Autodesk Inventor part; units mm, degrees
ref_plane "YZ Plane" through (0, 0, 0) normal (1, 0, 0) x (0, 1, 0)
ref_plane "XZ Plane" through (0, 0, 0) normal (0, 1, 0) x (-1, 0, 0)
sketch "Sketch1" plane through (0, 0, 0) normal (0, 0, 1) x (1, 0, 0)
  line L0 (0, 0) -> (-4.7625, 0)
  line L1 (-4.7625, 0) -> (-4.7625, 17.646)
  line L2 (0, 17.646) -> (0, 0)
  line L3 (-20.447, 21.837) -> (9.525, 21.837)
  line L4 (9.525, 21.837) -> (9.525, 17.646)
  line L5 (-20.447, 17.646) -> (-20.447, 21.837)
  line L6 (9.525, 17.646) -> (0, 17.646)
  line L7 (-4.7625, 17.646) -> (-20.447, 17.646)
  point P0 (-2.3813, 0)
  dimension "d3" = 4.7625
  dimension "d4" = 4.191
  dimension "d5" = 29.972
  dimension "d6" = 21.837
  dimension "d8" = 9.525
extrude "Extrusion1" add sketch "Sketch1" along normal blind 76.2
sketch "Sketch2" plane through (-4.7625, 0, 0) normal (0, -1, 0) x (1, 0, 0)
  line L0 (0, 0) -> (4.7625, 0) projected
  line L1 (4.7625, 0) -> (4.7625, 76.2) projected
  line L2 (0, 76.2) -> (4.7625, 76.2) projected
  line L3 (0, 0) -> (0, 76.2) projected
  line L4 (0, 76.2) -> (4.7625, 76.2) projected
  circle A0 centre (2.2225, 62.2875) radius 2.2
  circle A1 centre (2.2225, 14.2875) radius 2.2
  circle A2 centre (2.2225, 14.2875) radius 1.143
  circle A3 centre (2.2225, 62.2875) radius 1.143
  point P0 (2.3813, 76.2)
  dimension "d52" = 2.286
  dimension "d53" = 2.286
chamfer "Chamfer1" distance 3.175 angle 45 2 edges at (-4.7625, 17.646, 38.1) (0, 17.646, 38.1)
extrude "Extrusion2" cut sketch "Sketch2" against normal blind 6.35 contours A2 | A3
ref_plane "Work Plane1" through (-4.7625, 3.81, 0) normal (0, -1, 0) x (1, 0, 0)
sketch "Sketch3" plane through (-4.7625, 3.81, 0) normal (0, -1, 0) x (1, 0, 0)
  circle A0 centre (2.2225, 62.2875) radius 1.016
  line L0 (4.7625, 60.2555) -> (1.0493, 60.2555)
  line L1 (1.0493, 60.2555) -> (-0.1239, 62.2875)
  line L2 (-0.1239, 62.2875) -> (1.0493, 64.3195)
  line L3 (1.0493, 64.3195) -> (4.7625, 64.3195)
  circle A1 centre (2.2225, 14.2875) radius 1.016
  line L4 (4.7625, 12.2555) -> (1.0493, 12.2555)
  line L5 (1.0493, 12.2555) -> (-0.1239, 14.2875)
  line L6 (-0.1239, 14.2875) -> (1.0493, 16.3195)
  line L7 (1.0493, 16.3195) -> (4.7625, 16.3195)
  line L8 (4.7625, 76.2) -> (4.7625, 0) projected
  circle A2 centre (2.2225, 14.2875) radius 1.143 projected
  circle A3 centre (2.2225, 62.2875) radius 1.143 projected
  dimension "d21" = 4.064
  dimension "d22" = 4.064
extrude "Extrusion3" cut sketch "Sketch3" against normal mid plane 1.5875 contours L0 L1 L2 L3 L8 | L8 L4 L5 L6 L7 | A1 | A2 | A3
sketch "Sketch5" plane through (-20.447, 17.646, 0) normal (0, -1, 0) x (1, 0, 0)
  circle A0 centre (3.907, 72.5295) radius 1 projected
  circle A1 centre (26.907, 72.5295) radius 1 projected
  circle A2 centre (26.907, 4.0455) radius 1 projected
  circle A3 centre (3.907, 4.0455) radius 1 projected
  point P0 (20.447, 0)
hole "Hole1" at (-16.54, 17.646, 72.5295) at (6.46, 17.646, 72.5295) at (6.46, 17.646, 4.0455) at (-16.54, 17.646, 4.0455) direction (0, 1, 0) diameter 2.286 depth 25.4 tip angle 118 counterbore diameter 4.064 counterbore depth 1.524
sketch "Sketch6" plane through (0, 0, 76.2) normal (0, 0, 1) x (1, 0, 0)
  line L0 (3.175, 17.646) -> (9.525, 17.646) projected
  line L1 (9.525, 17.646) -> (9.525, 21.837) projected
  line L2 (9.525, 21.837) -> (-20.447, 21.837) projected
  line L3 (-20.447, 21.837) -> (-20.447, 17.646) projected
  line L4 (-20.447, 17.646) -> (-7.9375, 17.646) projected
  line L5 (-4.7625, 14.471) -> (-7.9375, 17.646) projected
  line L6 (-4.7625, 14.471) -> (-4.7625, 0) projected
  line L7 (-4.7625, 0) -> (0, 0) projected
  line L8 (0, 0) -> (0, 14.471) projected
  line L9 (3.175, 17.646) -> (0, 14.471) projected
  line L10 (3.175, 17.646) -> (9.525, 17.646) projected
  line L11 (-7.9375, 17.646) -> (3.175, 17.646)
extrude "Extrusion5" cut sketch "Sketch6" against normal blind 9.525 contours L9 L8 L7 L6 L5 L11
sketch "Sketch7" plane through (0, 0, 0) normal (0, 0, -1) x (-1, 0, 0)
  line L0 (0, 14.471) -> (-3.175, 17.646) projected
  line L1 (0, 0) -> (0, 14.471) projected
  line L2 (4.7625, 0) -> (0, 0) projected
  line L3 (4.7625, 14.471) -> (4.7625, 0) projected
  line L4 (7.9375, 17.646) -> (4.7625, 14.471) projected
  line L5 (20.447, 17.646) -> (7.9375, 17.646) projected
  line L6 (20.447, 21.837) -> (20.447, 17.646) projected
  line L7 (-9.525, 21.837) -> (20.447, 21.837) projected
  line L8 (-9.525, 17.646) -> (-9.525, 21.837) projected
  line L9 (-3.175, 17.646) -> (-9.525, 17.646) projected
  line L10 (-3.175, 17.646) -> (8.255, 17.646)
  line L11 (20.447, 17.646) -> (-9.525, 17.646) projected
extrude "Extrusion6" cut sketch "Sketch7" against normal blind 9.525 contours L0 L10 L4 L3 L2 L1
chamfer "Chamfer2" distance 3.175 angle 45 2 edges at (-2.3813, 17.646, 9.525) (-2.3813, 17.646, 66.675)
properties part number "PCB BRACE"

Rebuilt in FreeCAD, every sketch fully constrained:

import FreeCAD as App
import Part
import Sketcher
from FreeCAD import Vector
Q = App.Units.Quantity


def edges_at(feature, points):
    """Names of the edges that pass closest to the given points."""
    edges = feature.Shape.Edges
    near = lambda p: min(range(len(edges)), key=lambda i: edges[i].distToShape(Part.Vertex(*p))[0])
    return sorted({f"Edge{near(p) + 1}" for p in points})

doc = App.newDocument("Part")
body = doc.addObject("PartDesign::Body", "Body")

# Sketch on XY plane
sketch1 = doc.addObject("Sketcher::SketchObject", "Sketch")
body.addObject(sketch1)
sketch1.AttachmentSupport = (doc.XY_Plane, [""])
sketch1.MapMode = "FlatFace"
sketch1.addGeometry([
    Part.LineSegment(Vector(-4.7625, 0, 0), Vector(0, 0, 0)),  # 0
    Part.LineSegment(Vector(0, 0, 0), Vector(0, 17.646, 0)),  # 1
    Part.LineSegment(Vector(0, 17.646, 0), Vector(9.525, 17.646, 0)),  # 2
    Part.LineSegment(Vector(9.525, 17.646, 0), Vector(9.525, 21.837, 0)),  # 3
    Part.LineSegment(Vector(9.525, 21.837, 0), Vector(-20.447, 21.837, 0)),  # 4
    Part.LineSegment(Vector(-20.447, 21.837, 0), Vector(-20.447, 17.646, 0)),  # 5
    Part.LineSegment(Vector(-20.447, 17.646, 0), Vector(-4.7625, 17.646, 0)),  # 6
    Part.LineSegment(Vector(-4.7625, 17.646, 0), Vector(-4.7625, 0, 0)),  # 7
], False)
sketch1.addConstraint([
    Sketcher.Constraint("Coincident", 0, 2, 1, 1),
    Sketcher.Constraint("Coincident", 1, 2, 2, 1),
    Sketcher.Constraint("Coincident", 2, 2, 3, 1),
    Sketcher.Constraint("Coincident", 3, 2, 4, 1),
    Sketcher.Constraint("Coincident", 4, 2, 5, 1),
    Sketcher.Constraint("Coincident", 5, 2, 6, 1),
    Sketcher.Constraint("Coincident", 6, 2, 7, 1),
    Sketcher.Constraint("Coincident", 7, 2, 0, 1),
    Sketcher.Constraint("Horizontal", 0),
    Sketcher.Constraint("Vertical", 1),
    Sketcher.Constraint("Horizontal", 2),
    Sketcher.Constraint("Vertical", 3),
    Sketcher.Constraint("Horizontal", 4),
    Sketcher.Constraint("Vertical", 5),
    Sketcher.Constraint("Horizontal", 6),
    Sketcher.Constraint("Vertical", 7),
    Sketcher.Constraint("Coincident", 0, 2, -1, 1),
    Sketcher.Constraint("Horizontal", 2, 2, 5, 2),
    Sketcher.Constraint("DistanceX", 4, 2, 4, 1, Q("1.18 in")),
    Sketcher.Constraint("DistanceX", 0, 1, 0, 2, Q("0.1875 in")),
    Sketcher.Constraint("DistanceX", 2, 1, 2, 2, Q("0.375 in")),
    Sketcher.Constraint("DistanceY", 3, 1, 3, 2, Q("0.165 in")),
    Sketcher.Constraint("DistanceY", -1, 1, 3, 2, 21.837),
])
pad1 = doc.addObject("PartDesign::Pad", "Pad")
body.addObject(pad1)
pad1.Profile = sketch1
pad1.Length = Q("3 in")
doc.recompute()

chamfer = doc.addObject("PartDesign::Chamfer", "Chamfer")
body.addObject(chamfer)
chamfer.Base = (pad1, edges_at(pad1, [(-4.763, 17.646, 38.1), (0, 17.646, 38.1)]))
chamfer.Size = Q("0.125 in")

# Sketch on XZ plane
sketch2 = doc.addObject("Sketcher::SketchObject", "Sketch001")
body.addObject(sketch2)
sketch2.AttachmentSupport = (doc.XZ_Plane, [""])
sketch2.MapMode = "FlatFace"
sketch2.addGeometry([
    Part.Circle(Vector(-2.54, 14.2875, 0), Vector(0, 0, 1), 1.143),
    Part.Circle(Vector(-2.54, 62.2875, 0), Vector(0, 0, 1), 1.143),
], False)
sketch2.addConstraint([
    Sketcher.Constraint("Equal", 0, 1),
    Sketcher.Constraint("Vertical", 0, 3, 1, 3),
    Sketcher.Constraint("Diameter", 0, Q("0.09 in")),
    Sketcher.Constraint("DistanceX", 0, 3, -1, 1, Q("0.1 in")),
    Sketcher.Constraint("DistanceY", -1, 1, 0, 3, Q("0.5625 in")),
    Sketcher.Constraint("DistanceY", -1, 1, 1, 3, 62.2875),
])
pocket1 = doc.addObject("PartDesign::Pocket", "Pocket")
body.addObject(pocket1)
pocket1.Profile = sketch2
pocket1.Length = Q("0.25 in")

# Sketch on XZ plane
sketch3 = doc.addObject("Sketcher::SketchObject", "Sketch002")
body.addObject(sketch3)
sketch3.AttachmentSupport = (doc.XZ_Plane, [""])
sketch3.MapMode = "FlatFace"
sketch3.AttachmentOffset = App.Placement(Vector(0, 0, -0.15 * 25.4), App.Rotation())
sketch3.addGeometry([
    Part.LineSegment(Vector(-3.7132, 60.2555, 0), Vector(0, 60.2555, 0)),  # 0
    Part.LineSegment(Vector(0, 60.2555, 0), Vector(0, 64.3195, 0)),  # 1
    Part.LineSegment(Vector(0, 64.3195, 0), Vector(-3.7132, 64.3195, 0)),  # 2
    Part.LineSegment(Vector(-3.7132, 64.3195, 0), Vector(-4.8864, 62.2875, 0)),  # 3
    Part.LineSegment(Vector(-4.8864, 62.2875, 0), Vector(-3.7132, 60.2555, 0)),  # 4
    Part.Circle(Vector(-2.54, 62.2875, 0), Vector(0, 0, 1), 1.016),  # 5
    Part.LineSegment(Vector(0, 12.2555, 0), Vector(0, 16.3195, 0)),  # 6
    Part.LineSegment(Vector(0, 16.3195, 0), Vector(-3.7132, 16.3195, 0)),  # 7
    Part.LineSegment(Vector(-3.7132, 16.3195, 0), Vector(-4.8864, 14.2875, 0)),  # 8
    Part.LineSegment(Vector(-4.8864, 14.2875, 0), Vector(-3.7132, 12.2555, 0)),  # 9
    Part.LineSegment(Vector(-3.7132, 12.2555, 0), Vector(0, 12.2555, 0)),  # 10
], False)
sketch3.addConstraint([
    Sketcher.Constraint("Coincident", 0, 2, 1, 1),
    Sketcher.Constraint("Coincident", 1, 2, 2, 1),
    Sketcher.Constraint("Coincident", 2, 2, 3, 1),
    Sketcher.Constraint("Coincident", 3, 2, 4, 1),
    Sketcher.Constraint("Coincident", 4, 2, 0, 1),
    Sketcher.Constraint("Coincident", 6, 2, 7, 1),
    Sketcher.Constraint("Coincident", 7, 2, 8, 1),
    Sketcher.Constraint("Coincident", 8, 2, 9, 1),
    Sketcher.Constraint("Coincident", 9, 2, 10, 1),
    Sketcher.Constraint("Coincident", 10, 2, 6, 1),
    Sketcher.Constraint("Horizontal", 0),
    Sketcher.Constraint("Vertical", 1),
    Sketcher.Constraint("Horizontal", 2),
    Sketcher.Constraint("Vertical", 6),
    Sketcher.Constraint("Horizontal", 7),
    Sketcher.Constraint("Horizontal", 10),
    Sketcher.Constraint("PointOnObject", 0, 2, -2),
    Sketcher.Constraint("PointOnObject", 6, 2, -2),
    Sketcher.Constraint("Parallel", 3, 8),
    Sketcher.Constraint("Parallel", 4, 9),
    Sketcher.Constraint("Horizontal", 5, 3, 3, 2),
    Sketcher.Constraint("Vertical", 2, 2, 4, 2),
    Sketcher.Constraint("Vertical", 4, 2, 7, 2),
    Sketcher.Constraint("Vertical", 3, 2, 8, 2),
    Sketcher.Constraint("Vertical", 7, 2, 9, 2),
    Sketcher.Constraint("Equal", 3, 4),
    Sketcher.Constraint("DistanceY", 1, 1, 1, 2, Q("0.16 in")),
    Sketcher.Constraint("Diameter", 5, Q("0.08 in")),
    Sketcher.Constraint("Angle", 3, Q("-120.0005 deg")),
    Sketcher.Constraint("DistanceX", 5, 3, -1, 1, Q("0.1 in")),
    Sketcher.Constraint("DistanceX", 0, 1, 0, 2, Q("0.1462 in")),
    Sketcher.Constraint("DistanceY", -1, 1, 8, 2, Q("0.5625 in")),
    Sketcher.Constraint("DistanceY", -1, 1, 5, 3, 62.2875),
])
pocket2 = doc.addObject("PartDesign::Pocket", "Pocket001")
body.addObject(pocket2)
pocket2.Profile = sketch3
pocket2.Length = Q("0.0625 in")
pocket2.Midplane = True

# Sketch on XZ plane
sketch4 = doc.addObject("Sketcher::SketchObject", "Sketch003")
body.addObject(sketch4)
sketch4.AttachmentSupport = (doc.XZ_Plane, [""])
sketch4.MapMode = "FlatFace"
sketch4.AttachmentOffset = App.Placement(Vector(0, 0, -17.646), App.Rotation())
sketch4.addGeometry([
    Part.Circle(Vector(-16.54, 72.5295, 0), Vector(0, 0, 1), 1.143),
    Part.Circle(Vector(6.46, 72.5295, 0), Vector(0, 0, 1), 1.143),
    Part.Circle(Vector(6.46, 4.0455, 0), Vector(0, 0, 1), 1.143),
    Part.Circle(Vector(-16.54, 4.0455, 0), Vector(0, 0, 1), 1.143),
], False)
sketch4.addConstraint([
    Sketcher.Constraint("Equal", 0, 1),
    Sketcher.Constraint("Equal", 1, 2),
    Sketcher.Constraint("Equal", 2, 3),
    Sketcher.Constraint("Horizontal", 0, 3, 1, 3),
    Sketcher.Constraint("Horizontal", 2, 3, 3, 3),
    Sketcher.Constraint("Vertical", 1, 3, 2, 3),
    Sketcher.Constraint("Vertical", 0, 3, 3, 3),
    Sketcher.Constraint("Diameter", 0, Q("0.09 in")),
    Sketcher.Constraint("DistanceY", -1, 1, 0, 3, Q("2.8555 in")),
    Sketcher.Constraint("DistanceX", 0, 3, 1, 3, Q("0.9055 in")),
    Sketcher.Constraint("DistanceX", 0, 3, -1, 1, 16.54),
    Sketcher.Constraint("DistanceY", -1, 1, 2, 3, 4.0455),
])
doc.recompute()
hole = doc.addObject("PartDesign::Hole", "Hole")
body.addObject(hole)
hole.Profile = sketch4
hole.ThreadType = "None"
hole.Diameter = Q("0.09 in")
hole.DepthType = "Dimension"
hole.Depth = Q("1 in")
hole.DrillPoint = "Angled"
hole.DrillPointAngle = 118
hole.HoleCutType = "Counterbore"
hole.HoleCutDiameter = Q("0.16 in")
hole.HoleCutDepth = Q("0.06 in")

# Sketch on XY plane
sketch5 = doc.addObject("Sketcher::SketchObject", "Sketch004")
body.addObject(sketch5)
sketch5.AttachmentSupport = (doc.XY_Plane, [""])
sketch5.MapMode = "FlatFace"
sketch5.AttachmentOffset = App.Placement(Vector(0, 0, 3 * 25.4), App.Rotation())
sketch5.addGeometry([
    Part.LineSegment(Vector(0, 14.471, 0), Vector(3.175, 17.646, 0)),  # 0
    Part.LineSegment(Vector(3.175, 17.646, 0), Vector(-7.9375, 17.646, 0)),  # 1
    Part.LineSegment(Vector(-7.9375, 17.646, 0), Vector(-4.7625, 14.471, 0)),  # 2
    Part.LineSegment(Vector(-4.7625, 14.471, 0), Vector(-4.7625, 0, 0)),  # 3
    Part.LineSegment(Vector(-4.7625, 0, 0), Vector(0, 0, 0)),  # 4
    Part.LineSegment(Vector(0, 0, 0), Vector(0, 14.471, 0)),  # 5
], False)
sketch5.addConstraint([
    Sketcher.Constraint("Coincident", 0, 2, 1, 1),
    Sketcher.Constraint("Coincident", 1, 2, 2, 1),
    Sketcher.Constraint("Coincident", 2, 2, 3, 1),
    Sketcher.Constraint("Coincident", 3, 2, 4, 1),
    Sketcher.Constraint("Coincident", 4, 2, 5, 1),
    Sketcher.Constraint("Coincident", 5, 2, 0, 1),
    Sketcher.Constraint("Horizontal", 1),
    Sketcher.Constraint("Vertical", 3),
    Sketcher.Constraint("Horizontal", 4),
    Sketcher.Constraint("Vertical", 5),
    Sketcher.Constraint("Coincident", 4, 2, -1, 1),
    Sketcher.Constraint("Perpendicular", 0, 2),
    Sketcher.Constraint("Horizontal", 2, 2, 5, 2),
    Sketcher.Constraint("Equal", 0, 2),
    Sketcher.Constraint("DistanceX", 1, 2, 1, 1, Q("0.4375 in")),
    Sketcher.Constraint("DistanceX", 4, 1, 4, 2, Q("0.1875 in")),
    Sketcher.Constraint("DistanceY", 3, 2, 3, 1, 14.471),
])
pocket3 = doc.addObject("PartDesign::Pocket", "Pocket002")
body.addObject(pocket3)
pocket3.Profile = sketch5
pocket3.Length = Q("0.375 in")

# Sketch on XY plane
sketch6 = doc.addObject("Sketcher::SketchObject", "Sketch005")
body.addObject(sketch6)
sketch6.AttachmentSupport = (doc.XY_Plane, [""])
sketch6.MapMode = "FlatFace"
sketch6.addGeometry([
    Part.LineSegment(Vector(3.175, 17.646, 0), Vector(0, 14.471, 0)),  # 0
    Part.LineSegment(Vector(0, 14.471, 0), Vector(0, 0, 0)),  # 1
    Part.LineSegment(Vector(0, 0, 0), Vector(-4.7625, 0, 0)),  # 2
    Part.LineSegment(Vector(-4.7625, 0, 0), Vector(-4.7625, 14.471, 0)),  # 3
    Part.LineSegment(Vector(-4.7625, 14.471, 0), Vector(-7.9375, 17.646, 0)),  # 4
    Part.LineSegment(Vector(-7.9375, 17.646, 0), Vector(3.175, 17.646, 0)),  # 5
], False)
sketch6.addConstraint([
    Sketcher.Constraint("Coincident", 0, 2, 1, 1),
    Sketcher.Constraint("Coincident", 1, 2, 2, 1),
    Sketcher.Constraint("Coincident", 2, 2, 3, 1),
    Sketcher.Constraint("Coincident", 3, 2, 4, 1),
    Sketcher.Constraint("Coincident", 4, 2, 5, 1),
    Sketcher.Constraint("Coincident", 5, 2, 0, 1),
    Sketcher.Constraint("Vertical", 1),
    Sketcher.Constraint("Horizontal", 2),
    Sketcher.Constraint("Vertical", 3),
    Sketcher.Constraint("Horizontal", 5),
    Sketcher.Constraint("Coincident", 1, 2, -1, 1),
    Sketcher.Constraint("Perpendicular", 0, 4),
    Sketcher.Constraint("Horizontal", 0, 2, 3, 2),
    Sketcher.Constraint("Equal", 0, 4),
    Sketcher.Constraint("DistanceX", 2, 2, 2, 1, Q("0.1875 in")),
    Sketcher.Constraint("DistanceX", 5, 1, 5, 2, Q("0.4375 in")),
    Sketcher.Constraint("DistanceY", 1, 2, 1, 1, 14.471),
])
pocket4 = doc.addObject("PartDesign::Pocket", "Pocket003")
body.addObject(pocket4)
pocket4.Profile = sketch6
pocket4.Length = Q("0.375 in")
pocket4.Reversed = True
doc.recompute()

chamfer2 = doc.addObject("PartDesign::Chamfer", "Chamfer001")
body.addObject(chamfer2)
chamfer2.Base = (pocket4, edges_at(pocket4, [(-2.381, 17.646, 9.525), (-2.381, 17.646, 66.675)]))
chamfer2.Size = Q("0.125 in")

doc.recompute()
